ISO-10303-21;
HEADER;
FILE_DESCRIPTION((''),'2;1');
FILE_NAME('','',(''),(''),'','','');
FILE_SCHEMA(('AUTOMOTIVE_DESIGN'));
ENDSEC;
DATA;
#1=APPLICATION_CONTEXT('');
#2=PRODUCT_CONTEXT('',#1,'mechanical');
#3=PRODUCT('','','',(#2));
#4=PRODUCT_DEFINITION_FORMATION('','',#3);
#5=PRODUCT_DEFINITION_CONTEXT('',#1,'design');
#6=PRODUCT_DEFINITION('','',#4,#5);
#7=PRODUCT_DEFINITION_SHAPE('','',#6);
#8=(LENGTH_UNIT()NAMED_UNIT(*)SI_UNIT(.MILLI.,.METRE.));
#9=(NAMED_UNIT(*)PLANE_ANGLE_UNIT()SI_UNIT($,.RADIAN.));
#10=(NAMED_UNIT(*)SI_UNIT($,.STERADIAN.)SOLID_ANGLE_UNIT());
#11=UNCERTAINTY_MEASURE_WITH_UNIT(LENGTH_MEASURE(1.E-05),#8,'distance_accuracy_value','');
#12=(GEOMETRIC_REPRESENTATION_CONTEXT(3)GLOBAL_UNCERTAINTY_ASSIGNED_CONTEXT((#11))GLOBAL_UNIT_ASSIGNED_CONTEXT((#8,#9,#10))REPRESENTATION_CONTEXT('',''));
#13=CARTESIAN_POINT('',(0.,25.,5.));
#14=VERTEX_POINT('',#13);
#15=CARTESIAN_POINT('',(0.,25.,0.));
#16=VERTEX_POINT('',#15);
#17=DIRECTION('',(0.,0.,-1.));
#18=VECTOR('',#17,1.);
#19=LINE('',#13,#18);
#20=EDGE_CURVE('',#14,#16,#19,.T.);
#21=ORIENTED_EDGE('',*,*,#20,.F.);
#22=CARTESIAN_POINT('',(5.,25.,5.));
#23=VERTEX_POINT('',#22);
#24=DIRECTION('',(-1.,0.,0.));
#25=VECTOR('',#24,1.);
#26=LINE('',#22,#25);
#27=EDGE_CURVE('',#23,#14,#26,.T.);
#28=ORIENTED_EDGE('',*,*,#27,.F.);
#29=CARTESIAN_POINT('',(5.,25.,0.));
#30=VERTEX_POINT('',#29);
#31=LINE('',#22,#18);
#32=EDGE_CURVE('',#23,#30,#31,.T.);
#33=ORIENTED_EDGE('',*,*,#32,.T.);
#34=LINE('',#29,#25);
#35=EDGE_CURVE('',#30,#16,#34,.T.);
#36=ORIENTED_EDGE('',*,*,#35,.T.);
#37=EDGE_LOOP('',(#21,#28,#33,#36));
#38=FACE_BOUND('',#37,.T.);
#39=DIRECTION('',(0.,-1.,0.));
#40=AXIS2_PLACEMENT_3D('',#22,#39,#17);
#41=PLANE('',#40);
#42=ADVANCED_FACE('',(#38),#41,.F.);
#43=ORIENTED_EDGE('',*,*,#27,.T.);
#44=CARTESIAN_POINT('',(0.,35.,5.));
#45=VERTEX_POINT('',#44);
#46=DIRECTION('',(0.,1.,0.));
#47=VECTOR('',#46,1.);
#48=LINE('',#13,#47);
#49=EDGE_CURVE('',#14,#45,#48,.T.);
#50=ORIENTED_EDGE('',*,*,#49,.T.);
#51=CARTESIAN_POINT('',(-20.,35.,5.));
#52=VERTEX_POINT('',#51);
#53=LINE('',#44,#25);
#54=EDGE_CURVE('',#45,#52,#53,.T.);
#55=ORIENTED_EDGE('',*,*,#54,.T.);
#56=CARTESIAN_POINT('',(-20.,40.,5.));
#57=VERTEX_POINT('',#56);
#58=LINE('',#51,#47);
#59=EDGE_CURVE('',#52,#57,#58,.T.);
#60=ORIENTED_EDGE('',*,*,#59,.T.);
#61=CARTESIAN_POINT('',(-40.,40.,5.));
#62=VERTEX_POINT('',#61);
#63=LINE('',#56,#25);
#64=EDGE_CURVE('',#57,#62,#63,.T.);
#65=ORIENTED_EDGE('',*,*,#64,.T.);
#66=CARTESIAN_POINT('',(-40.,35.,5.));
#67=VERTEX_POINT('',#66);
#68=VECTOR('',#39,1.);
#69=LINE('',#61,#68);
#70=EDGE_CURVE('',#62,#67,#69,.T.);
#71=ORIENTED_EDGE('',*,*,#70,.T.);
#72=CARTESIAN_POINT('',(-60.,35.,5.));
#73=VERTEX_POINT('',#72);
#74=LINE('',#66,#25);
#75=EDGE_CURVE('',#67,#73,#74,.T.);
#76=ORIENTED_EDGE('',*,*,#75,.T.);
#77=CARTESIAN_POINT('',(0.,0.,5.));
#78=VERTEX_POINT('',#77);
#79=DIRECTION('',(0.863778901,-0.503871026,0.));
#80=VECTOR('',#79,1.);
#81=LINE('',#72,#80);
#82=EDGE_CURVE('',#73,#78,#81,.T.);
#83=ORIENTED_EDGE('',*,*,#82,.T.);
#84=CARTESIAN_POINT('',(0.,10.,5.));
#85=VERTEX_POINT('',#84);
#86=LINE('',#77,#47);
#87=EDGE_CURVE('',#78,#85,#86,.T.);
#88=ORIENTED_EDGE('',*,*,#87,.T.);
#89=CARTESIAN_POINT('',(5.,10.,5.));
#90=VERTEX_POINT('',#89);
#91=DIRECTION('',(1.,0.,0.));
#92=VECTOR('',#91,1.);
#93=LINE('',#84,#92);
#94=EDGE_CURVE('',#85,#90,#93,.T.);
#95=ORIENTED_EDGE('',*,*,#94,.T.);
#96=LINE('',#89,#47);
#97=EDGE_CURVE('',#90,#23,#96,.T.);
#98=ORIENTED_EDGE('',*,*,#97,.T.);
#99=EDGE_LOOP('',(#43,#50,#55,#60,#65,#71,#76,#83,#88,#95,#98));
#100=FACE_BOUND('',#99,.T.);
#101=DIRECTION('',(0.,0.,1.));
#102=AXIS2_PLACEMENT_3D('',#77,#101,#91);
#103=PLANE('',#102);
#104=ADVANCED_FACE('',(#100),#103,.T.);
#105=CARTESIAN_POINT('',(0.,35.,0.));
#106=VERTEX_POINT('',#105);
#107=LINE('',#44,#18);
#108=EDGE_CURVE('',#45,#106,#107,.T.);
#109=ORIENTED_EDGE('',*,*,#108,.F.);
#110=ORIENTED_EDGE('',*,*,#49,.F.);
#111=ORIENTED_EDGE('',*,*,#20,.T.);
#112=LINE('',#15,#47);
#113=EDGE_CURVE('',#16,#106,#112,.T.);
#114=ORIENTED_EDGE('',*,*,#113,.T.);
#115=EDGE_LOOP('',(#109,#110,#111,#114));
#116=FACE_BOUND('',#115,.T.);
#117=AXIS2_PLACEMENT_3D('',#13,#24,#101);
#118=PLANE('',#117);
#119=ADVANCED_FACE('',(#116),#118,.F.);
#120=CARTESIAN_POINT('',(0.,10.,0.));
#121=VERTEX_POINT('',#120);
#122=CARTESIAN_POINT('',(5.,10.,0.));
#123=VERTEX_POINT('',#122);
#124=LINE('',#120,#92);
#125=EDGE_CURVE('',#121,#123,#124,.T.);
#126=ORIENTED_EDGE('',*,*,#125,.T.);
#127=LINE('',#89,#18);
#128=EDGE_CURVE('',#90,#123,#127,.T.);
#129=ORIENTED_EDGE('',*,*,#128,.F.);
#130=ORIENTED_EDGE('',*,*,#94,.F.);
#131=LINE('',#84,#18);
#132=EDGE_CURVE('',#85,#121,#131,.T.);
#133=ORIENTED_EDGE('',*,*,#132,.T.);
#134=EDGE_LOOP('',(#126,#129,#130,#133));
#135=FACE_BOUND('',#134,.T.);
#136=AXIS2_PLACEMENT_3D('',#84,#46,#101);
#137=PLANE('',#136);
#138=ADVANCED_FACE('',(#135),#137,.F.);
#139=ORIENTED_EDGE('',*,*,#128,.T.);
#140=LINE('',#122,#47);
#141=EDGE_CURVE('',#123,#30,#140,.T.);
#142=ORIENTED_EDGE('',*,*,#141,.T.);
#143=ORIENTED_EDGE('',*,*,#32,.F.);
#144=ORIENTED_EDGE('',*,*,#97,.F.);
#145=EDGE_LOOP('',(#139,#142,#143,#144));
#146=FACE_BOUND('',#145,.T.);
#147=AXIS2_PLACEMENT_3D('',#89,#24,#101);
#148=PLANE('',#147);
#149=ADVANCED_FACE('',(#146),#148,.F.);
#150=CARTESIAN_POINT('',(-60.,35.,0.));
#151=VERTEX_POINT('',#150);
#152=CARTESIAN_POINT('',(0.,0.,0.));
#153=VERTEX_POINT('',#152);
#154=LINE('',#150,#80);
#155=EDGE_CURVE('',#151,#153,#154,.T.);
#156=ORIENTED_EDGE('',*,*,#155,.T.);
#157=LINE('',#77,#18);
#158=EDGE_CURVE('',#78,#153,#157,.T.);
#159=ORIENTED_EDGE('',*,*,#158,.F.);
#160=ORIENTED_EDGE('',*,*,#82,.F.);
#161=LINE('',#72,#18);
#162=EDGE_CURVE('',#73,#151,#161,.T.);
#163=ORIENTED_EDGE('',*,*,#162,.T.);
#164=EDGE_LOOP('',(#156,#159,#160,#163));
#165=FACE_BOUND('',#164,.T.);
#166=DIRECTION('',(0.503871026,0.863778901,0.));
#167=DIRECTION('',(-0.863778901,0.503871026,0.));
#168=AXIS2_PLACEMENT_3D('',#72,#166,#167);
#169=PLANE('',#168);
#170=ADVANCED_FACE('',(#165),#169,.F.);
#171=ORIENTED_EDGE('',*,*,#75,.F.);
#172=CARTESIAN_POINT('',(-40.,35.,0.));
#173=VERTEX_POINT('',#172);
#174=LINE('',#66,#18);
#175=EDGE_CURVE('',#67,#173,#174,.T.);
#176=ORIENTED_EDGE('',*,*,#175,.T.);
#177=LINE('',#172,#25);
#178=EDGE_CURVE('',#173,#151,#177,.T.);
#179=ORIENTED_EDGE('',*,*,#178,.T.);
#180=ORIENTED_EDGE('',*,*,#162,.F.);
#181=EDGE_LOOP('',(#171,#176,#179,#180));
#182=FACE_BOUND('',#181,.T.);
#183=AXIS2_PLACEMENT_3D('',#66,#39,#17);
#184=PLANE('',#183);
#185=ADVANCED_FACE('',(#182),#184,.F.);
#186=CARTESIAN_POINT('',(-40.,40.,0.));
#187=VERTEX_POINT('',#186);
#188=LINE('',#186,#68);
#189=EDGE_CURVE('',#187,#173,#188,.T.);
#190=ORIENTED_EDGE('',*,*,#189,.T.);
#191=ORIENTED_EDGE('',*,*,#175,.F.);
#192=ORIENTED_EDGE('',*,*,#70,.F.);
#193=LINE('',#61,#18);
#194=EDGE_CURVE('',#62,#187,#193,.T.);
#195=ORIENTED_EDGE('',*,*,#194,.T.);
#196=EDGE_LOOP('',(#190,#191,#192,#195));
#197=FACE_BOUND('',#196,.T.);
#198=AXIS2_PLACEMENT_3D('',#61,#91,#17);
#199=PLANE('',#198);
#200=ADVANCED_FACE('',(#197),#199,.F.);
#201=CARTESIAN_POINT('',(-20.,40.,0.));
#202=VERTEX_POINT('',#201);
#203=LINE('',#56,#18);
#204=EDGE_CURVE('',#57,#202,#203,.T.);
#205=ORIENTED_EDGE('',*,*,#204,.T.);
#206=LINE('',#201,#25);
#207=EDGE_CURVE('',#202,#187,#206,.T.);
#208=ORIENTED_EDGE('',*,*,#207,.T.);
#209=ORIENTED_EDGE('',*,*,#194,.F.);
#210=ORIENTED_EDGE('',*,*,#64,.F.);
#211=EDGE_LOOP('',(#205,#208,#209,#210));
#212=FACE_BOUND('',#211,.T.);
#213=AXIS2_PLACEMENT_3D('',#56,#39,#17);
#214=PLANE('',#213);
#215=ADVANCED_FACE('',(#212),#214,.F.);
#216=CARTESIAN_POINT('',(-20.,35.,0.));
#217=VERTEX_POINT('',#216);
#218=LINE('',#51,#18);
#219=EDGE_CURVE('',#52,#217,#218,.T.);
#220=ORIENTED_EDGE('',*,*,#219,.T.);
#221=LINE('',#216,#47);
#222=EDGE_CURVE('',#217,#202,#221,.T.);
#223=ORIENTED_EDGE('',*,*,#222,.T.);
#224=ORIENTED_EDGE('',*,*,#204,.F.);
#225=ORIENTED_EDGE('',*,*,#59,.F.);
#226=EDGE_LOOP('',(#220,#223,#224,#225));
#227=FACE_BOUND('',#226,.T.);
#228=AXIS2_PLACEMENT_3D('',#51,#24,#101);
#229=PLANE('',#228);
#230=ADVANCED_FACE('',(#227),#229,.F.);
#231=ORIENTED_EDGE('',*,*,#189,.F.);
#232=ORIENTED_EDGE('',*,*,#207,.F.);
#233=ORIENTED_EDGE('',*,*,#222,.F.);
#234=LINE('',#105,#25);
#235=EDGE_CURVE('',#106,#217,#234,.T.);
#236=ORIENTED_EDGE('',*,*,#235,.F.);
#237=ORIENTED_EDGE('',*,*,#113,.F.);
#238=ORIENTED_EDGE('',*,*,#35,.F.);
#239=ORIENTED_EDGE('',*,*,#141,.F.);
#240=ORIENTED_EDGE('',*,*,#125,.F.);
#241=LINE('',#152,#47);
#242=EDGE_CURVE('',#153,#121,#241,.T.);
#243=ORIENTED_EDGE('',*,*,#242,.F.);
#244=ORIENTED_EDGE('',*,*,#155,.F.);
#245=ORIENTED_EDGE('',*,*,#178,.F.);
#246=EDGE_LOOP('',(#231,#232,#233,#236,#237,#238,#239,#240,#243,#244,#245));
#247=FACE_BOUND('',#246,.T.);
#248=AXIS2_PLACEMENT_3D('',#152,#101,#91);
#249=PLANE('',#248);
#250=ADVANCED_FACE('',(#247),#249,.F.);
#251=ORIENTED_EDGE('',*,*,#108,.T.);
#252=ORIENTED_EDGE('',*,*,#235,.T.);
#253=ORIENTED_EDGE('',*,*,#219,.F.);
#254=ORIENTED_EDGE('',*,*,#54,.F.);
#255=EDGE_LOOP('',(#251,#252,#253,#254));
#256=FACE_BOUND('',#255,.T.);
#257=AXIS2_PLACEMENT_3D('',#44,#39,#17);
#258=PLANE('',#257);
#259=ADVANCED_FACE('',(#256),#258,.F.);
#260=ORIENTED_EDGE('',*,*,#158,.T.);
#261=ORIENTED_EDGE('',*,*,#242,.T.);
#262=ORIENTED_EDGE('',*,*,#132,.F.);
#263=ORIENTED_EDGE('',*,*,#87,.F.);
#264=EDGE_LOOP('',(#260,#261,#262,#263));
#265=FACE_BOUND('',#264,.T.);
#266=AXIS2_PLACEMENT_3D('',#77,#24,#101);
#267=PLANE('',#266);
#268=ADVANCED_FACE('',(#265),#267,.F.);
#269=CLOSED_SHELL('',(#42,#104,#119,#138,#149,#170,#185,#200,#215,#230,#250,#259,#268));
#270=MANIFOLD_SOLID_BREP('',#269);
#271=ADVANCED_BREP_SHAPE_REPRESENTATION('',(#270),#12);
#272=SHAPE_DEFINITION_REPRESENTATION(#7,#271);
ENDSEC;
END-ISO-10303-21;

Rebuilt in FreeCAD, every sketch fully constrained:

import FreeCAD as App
import Part
import Sketcher
from FreeCAD import Vector

doc = App.newDocument("Part")
params = doc.addObject("Spreadsheet::Sheet", "Params")
for row, (alias, value) in enumerate([
    ("sketch1_width", "5 mm"),
    ("sketch1_width2", "20 mm"),
    ("sketch1_height", "10 mm"),
    ("sketch1_height2", "15 mm"),
    ("pad1_length", "5 mm"),
], start=1):
    params.set(f"A{row}", alias)
    params.set(f"B{row}", "=" + value)
    params.setAlias(f"B{row}", alias)

body = doc.addObject("PartDesign::Body", "Body")

sketch1 = body.newObject("Sketcher::SketchObject", "Sketch")
sketch1.AttachmentSupport = (doc.getObject("XY_Plane"), [""])
sketch1.MapMode = "FlatFace"
sketch1.addGeometry(Part.LineSegment(Vector(0, 0, 0), Vector(0, 10, 0)), False)
sketch1.addGeometry(Part.LineSegment(Vector(0, 10, 0), Vector(5, 10, 0)), False)
sketch1.addGeometry(Part.LineSegment(Vector(5, 10, 0), Vector(5, 25, 0)), False)
sketch1.addGeometry(Part.LineSegment(Vector(5, 25, 0), Vector(0, 25, 0)), False)
sketch1.addGeometry(Part.LineSegment(Vector(0, 25, 0), Vector(0, 35, 0)), False)
sketch1.addGeometry(Part.LineSegment(Vector(0, 35, 0), Vector(-20, 35, 0)), False)
sketch1.addGeometry(Part.LineSegment(Vector(-20, 35, 0), Vector(-20, 40, 0)), False)
sketch1.addGeometry(Part.LineSegment(Vector(-20, 40, 0), Vector(-40, 40, 0)), False)
sketch1.addGeometry(Part.LineSegment(Vector(-40, 40, 0), Vector(-40, 35, 0)), False)
sketch1.addGeometry(Part.LineSegment(Vector(-40, 35, 0), Vector(-60, 35, 0)), False)
sketch1.addGeometry(Part.LineSegment(Vector(-60, 35, 0), Vector(0, 0, 0)), False)
sketch1.addConstraint(Sketcher.Constraint("Coincident", 0, 2, 1, 1))
sketch1.addConstraint(Sketcher.Constraint("Coincident", 1, 2, 2, 1))
sketch1.addConstraint(Sketcher.Constraint("Coincident", 2, 2, 3, 1))
sketch1.addConstraint(Sketcher.Constraint("Coincident", 3, 2, 4, 1))
sketch1.addConstraint(Sketcher.Constraint("Coincident", 4, 2, 5, 1))
sketch1.addConstraint(Sketcher.Constraint("Coincident", 5, 2, 6, 1))
sketch1.addConstraint(Sketcher.Constraint("Coincident", 6, 2, 7, 1))
sketch1.addConstraint(Sketcher.Constraint("Coincident", 7, 2, 8, 1))
sketch1.addConstraint(Sketcher.Constraint("Coincident", 8, 2, 9, 1))
sketch1.addConstraint(Sketcher.Constraint("Coincident", 9, 2, 10, 1))
sketch1.addConstraint(Sketcher.Constraint("Coincident", 10, 2, 0, 1))
sketch1.addConstraint(Sketcher.Constraint("Vertical", 0))
sketch1.addConstraint(Sketcher.Constraint("Horizontal", 1))
sketch1.addConstraint(Sketcher.Constraint("Vertical", 2))
sketch1.addConstraint(Sketcher.Constraint("Horizontal", 3))
sketch1.addConstraint(Sketcher.Constraint("Vertical", 4))
sketch1.addConstraint(Sketcher.Constraint("Horizontal", 5))
sketch1.addConstraint(Sketcher.Constraint("Vertical", 6))
sketch1.addConstraint(Sketcher.Constraint("Horizontal", 7))
sketch1.addConstraint(Sketcher.Constraint("Vertical", 8))
sketch1.addConstraint(Sketcher.Constraint("Horizontal", 9))
sketch1.addConstraint(Sketcher.Constraint("Coincident", 10, 2, -1, 1))
sketch1.addConstraint(Sketcher.Constraint("PointOnObject", 3, 2, -2))
sketch1.addConstraint(Sketcher.Constraint("Horizontal", 5, 2, 8, 2))
sketch1.addConstraint(Sketcher.Constraint("Equal", 5, 7))
sketch1.addConstraint(Sketcher.Constraint("Equal", 7, 9))
sketch1.addConstraint(Sketcher.Constraint("Equal", 0, 4))
sketch1.addConstraint(Sketcher.Constraint("Equal", 3, 6))
sketch1.addConstraint(Sketcher.Constraint("DistanceX", 1, 1, 1, 2, 5.0))
sketch1.addConstraint(Sketcher.Constraint("DistanceX", 5, 2, 5, 1, 20.0))
sketch1.addConstraint(Sketcher.Constraint("DistanceY", 0, 1, 0, 2, 10.0))
sketch1.addConstraint(Sketcher.Constraint("DistanceY", 2, 1, 2, 2, 15.0))
sketch1.setExpression("Constraints[28]", "Params.sketch1_width")
sketch1.setExpression("Constraints[29]", "Params.sketch1_width2")
sketch1.setExpression("Constraints[30]", "Params.sketch1_height")
sketch1.setExpression("Constraints[31]", "Params.sketch1_height2")
pad1 = body.newObject("PartDesign::Pad", "Pad")
pad1.Profile = sketch1
pad1.setExpression("Length", "Params.pad1_length")

doc.recompute()
